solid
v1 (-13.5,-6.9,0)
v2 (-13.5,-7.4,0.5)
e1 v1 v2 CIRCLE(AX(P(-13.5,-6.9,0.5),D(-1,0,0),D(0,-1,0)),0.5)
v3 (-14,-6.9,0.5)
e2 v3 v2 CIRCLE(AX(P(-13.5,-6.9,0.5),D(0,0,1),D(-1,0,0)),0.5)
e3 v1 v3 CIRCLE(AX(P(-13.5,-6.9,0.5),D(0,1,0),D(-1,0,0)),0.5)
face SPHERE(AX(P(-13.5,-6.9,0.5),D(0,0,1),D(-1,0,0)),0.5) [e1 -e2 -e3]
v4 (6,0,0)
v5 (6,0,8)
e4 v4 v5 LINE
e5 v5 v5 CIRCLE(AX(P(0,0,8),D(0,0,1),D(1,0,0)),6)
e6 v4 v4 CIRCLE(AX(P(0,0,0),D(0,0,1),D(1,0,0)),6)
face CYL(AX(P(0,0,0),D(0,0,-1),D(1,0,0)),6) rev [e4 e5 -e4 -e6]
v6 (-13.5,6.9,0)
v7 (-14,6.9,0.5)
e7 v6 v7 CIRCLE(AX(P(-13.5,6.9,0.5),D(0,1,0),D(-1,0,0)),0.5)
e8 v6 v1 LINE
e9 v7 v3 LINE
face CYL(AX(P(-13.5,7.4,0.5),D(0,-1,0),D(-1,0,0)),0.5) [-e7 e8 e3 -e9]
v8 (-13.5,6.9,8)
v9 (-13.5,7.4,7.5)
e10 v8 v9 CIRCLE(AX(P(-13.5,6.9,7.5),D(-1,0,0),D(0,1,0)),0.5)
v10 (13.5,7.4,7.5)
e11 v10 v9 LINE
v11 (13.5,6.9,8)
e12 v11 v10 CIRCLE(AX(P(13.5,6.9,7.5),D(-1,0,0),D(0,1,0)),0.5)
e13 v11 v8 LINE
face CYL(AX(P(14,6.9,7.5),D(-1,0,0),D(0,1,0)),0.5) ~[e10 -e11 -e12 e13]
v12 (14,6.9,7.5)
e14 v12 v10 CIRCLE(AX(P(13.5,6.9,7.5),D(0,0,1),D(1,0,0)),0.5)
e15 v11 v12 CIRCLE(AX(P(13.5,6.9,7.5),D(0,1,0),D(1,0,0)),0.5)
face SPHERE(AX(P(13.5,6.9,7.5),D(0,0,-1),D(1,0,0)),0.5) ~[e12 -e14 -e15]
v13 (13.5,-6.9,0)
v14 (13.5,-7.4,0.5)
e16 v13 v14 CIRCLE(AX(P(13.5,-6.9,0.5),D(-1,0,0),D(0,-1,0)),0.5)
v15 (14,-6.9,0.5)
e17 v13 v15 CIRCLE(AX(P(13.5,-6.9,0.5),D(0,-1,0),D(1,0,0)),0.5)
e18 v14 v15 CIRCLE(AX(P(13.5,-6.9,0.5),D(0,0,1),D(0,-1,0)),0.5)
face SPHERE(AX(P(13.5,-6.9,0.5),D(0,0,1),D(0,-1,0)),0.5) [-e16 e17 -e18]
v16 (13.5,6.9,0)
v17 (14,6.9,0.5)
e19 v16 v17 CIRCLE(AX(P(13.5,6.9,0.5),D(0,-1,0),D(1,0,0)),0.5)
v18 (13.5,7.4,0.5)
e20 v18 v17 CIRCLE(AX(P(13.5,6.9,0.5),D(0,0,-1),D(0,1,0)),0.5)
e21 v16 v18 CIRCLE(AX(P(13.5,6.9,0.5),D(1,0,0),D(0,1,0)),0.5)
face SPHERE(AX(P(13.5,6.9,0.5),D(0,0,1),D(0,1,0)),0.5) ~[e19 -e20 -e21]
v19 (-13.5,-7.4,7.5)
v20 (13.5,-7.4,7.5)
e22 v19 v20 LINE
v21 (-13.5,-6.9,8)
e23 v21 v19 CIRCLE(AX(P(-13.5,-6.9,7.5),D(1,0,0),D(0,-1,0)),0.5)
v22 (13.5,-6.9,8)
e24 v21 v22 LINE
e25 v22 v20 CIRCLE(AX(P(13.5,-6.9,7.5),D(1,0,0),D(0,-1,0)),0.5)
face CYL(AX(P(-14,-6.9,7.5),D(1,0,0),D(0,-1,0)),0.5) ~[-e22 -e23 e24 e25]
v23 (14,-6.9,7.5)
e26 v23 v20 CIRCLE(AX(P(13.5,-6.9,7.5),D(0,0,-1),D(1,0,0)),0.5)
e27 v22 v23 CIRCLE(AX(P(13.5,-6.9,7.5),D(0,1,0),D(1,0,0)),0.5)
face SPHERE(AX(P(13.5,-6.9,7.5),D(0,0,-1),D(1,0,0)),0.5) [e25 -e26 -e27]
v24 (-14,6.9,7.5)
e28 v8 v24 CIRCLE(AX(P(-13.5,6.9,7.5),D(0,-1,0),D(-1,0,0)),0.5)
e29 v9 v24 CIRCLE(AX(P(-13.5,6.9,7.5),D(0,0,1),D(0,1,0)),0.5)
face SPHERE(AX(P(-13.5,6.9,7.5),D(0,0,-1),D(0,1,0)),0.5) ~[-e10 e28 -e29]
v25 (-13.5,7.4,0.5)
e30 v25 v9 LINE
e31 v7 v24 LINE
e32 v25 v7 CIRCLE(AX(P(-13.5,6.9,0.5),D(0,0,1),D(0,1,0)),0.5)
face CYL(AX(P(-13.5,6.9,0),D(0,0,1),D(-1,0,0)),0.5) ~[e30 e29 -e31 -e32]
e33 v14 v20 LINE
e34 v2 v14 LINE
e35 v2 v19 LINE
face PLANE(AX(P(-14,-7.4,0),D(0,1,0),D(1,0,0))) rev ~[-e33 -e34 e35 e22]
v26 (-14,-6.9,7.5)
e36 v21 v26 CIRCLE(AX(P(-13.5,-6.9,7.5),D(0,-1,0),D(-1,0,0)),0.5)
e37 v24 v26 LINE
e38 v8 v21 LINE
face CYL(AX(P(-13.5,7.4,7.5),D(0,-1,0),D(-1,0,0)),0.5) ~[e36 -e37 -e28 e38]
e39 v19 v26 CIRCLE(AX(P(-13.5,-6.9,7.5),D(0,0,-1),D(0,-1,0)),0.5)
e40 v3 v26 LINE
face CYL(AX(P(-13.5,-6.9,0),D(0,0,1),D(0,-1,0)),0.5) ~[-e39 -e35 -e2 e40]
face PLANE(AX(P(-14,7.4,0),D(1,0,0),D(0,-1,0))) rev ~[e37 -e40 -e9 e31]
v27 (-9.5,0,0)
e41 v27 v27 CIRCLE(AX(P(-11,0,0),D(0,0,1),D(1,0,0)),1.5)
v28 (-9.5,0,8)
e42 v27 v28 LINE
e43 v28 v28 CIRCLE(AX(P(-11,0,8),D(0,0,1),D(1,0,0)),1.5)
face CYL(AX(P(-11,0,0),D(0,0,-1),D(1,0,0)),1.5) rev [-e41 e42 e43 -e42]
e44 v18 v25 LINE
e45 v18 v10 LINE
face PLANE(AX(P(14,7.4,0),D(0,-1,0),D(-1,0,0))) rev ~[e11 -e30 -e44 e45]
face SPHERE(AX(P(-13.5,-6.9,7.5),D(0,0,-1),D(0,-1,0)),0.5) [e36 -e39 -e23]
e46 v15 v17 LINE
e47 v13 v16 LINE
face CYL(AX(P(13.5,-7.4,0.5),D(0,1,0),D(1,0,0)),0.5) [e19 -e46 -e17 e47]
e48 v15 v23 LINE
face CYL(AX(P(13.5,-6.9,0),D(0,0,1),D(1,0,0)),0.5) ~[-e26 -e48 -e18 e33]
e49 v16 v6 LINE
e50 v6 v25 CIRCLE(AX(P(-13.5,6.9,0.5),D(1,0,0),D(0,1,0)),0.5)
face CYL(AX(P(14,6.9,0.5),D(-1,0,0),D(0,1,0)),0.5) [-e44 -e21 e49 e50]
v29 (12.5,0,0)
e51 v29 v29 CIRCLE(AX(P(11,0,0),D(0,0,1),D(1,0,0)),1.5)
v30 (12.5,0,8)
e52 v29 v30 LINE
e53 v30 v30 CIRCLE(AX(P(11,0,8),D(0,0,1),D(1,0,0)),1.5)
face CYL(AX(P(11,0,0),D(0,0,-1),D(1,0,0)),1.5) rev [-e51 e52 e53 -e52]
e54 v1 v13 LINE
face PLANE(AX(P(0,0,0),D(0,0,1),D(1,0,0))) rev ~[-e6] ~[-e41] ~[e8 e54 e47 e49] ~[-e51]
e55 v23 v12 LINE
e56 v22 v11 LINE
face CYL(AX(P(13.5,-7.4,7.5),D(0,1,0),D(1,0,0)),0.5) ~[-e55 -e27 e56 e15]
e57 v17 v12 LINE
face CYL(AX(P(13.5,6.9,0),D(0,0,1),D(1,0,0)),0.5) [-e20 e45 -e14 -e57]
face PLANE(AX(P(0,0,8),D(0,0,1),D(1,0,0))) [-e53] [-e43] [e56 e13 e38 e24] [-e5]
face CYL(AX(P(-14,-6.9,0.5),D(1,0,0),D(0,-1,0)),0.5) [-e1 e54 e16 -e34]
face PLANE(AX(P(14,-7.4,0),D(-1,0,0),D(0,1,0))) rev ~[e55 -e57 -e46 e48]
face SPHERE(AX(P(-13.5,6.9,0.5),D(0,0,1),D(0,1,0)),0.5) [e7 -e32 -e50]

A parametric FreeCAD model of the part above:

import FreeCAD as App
import Part
import Sketcher


def edges_at(feature, points):
    """Names of the edges that pass closest to the given points."""
    edges = feature.Shape.Edges
    near = lambda p: min(range(len(edges)), key=lambda i: edges[i].distToShape(Part.Vertex(*p))[0])
    return sorted({f"Edge{near(p) + 1}" for p in points})


def add_polygon(sketch, points):
    """Adds a closed chain of lines whose ends are joined by coincident constraints."""
    first, n = sketch.GeometryCount, len(points)
    for a, b in zip(points, points[1:] + points[:1]):
        sketch.addGeometry(Part.LineSegment(App.Vector(*a, 0), App.Vector(*b, 0)), False)
    for i in range(n):
        sketch.addConstraint(Sketcher.Constraint("Coincident", first + i, 2, first + (i + 1) % n, 1))

doc = App.newDocument("Part")
body = doc.addObject("PartDesign::Body", "Body")

sketch1 = doc.addObject("Sketcher::SketchObject", "Sketch")
body.addObject(sketch1)
sketch1.AttachmentSupport = (doc.XY_Plane, [""])
sketch1.MapMode = "FlatFace"
add_polygon(sketch1, [(14, -7.4), (14, 7.4), (-14, 7.4), (-14, -7.4)])
sketch1.addGeometry(Part.Circle(App.Vector(-11, 0, 0), App.Vector(0, 0, 1), 1.5), False)
sketch1.addGeometry(Part.Circle(App.Vector(0, 0, 0), App.Vector(0, 0, 1), 6), False)
sketch1.addGeometry(Part.Circle(App.Vector(11, 0, 0), App.Vector(0, 0, 1), 1.5), False)
sketch1.addConstraint([
    Sketcher.Constraint("Vertical", 0),
    Sketcher.Constraint("Horizontal", 1),
    Sketcher.Constraint("Vertical", 2),
    Sketcher.Constraint("Horizontal", 3),
    Sketcher.Constraint("Coincident", 5, 3, -1, 1),
    Sketcher.Constraint("Equal", 4, 6),
    Sketcher.Constraint("Symmetric", 4, 3, 6, 3, -1, 1),
    Sketcher.Constraint("Symmetric", 0, 2, 2, 2, -1, 1),
    Sketcher.Constraint("PointOnObject", 4, 3, -1),
    Sketcher.Constraint("Diameter", 4, 3.0),
    Sketcher.Constraint("Diameter", 5, 12.0),
    Sketcher.Constraint("DistanceX", 1, 2, 1, 1, 28.0),
    Sketcher.Constraint("DistanceY", 0, 1, 0, 2, 14.8),
    Sketcher.Constraint("DistanceX", 4, 3, -1, 1, 11.0),
])
pad1 = doc.addObject("PartDesign::Pad", "Pad")
body.addObject(pad1)
pad1.Profile = sketch1
pad1.Length = 8
doc.recompute()

fillet = doc.addObject("PartDesign::Fillet", "Fillet")
body.addObject(fillet)
fillet.Base = (pad1, edges_at(pad1, [
    (-14, 7.4, 4),
    (14, -7.4, 4),
    (-14, -7.4, 4),
    (14, 7.4, 4),
    (0, 7.4, 0),
    (-14, 0, 0),
    (0, -7.4, 0),
    (14, 0, 0),
    (14, 0, 8),
    (0, 7.4, 8),
    (0, -7.4, 8),
    (-14, 0, 8),
]))
fillet.Radius = 0.5

doc.recompute()
